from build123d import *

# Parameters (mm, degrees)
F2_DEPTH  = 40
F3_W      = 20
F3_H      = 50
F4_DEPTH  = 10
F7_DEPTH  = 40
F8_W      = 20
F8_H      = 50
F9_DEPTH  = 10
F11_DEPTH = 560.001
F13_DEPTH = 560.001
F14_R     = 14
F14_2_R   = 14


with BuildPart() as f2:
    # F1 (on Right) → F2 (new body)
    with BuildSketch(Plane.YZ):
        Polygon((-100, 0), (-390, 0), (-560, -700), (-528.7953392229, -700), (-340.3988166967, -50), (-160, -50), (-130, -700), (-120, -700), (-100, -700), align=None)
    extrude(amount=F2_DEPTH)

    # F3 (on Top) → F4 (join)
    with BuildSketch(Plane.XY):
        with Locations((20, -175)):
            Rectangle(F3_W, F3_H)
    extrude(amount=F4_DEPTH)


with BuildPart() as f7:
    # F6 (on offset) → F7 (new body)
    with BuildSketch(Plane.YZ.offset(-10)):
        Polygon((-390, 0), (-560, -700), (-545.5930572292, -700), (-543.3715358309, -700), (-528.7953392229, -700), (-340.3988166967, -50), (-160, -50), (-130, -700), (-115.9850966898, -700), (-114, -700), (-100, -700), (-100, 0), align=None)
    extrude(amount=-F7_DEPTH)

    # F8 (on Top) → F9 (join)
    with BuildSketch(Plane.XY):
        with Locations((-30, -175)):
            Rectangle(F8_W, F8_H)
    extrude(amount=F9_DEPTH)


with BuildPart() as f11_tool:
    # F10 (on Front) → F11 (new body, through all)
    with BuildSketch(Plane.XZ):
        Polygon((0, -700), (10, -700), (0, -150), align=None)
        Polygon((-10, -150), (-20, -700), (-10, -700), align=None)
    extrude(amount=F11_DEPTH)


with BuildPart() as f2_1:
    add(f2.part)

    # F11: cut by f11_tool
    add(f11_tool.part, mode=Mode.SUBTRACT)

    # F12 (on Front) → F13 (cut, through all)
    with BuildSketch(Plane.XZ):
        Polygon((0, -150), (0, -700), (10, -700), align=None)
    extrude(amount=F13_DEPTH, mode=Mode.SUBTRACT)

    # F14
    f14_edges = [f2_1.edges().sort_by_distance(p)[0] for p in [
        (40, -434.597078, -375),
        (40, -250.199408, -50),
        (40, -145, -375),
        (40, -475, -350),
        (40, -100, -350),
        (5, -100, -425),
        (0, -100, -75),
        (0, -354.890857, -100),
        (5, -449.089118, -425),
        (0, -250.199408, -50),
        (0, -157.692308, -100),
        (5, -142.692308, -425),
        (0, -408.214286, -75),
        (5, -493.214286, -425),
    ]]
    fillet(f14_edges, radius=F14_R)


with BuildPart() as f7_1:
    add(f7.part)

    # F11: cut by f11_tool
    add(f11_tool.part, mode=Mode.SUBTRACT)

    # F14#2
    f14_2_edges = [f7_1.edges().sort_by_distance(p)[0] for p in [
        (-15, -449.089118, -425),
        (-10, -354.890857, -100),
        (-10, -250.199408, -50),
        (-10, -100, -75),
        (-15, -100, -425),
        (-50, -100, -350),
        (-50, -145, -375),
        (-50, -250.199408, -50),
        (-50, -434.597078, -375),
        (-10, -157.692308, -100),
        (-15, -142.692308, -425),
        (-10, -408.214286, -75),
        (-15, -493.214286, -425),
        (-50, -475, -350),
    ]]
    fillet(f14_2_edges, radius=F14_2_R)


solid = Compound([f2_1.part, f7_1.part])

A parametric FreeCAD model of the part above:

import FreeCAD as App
import Part
import Sketcher

V = App.Vector
Q = App.Units.Quantity


def edges_at(feature, points):
    """Names of the edges that pass closest to the given points."""
    edges = feature.Shape.Edges
    near = lambda p: min(range(len(edges)), key=lambda i: edges[i].distToShape(Part.Vertex(*p))[0])
    return sorted({f"Edge{near(p) + 1}" for p in points})

doc = App.newDocument("Part")
body = doc.addObject("PartDesign::Body", "Body")

# Sketch on YZ plane
sketch1 = body.newObject("Sketcher::SketchObject", "Sketch")
sketch1.AttachmentSupport = (doc.getObject("YZ_Plane"), [""])
sketch1.MapMode = "FlatFace"
sketch1.addGeometry([
    Part.LineSegment(V(-100, 0, 0), V(-390, 0, 0)),  # 0
    Part.LineSegment(V(-390, 0, 0), V(-560, -700, 0)),  # 1
    Part.LineSegment(V(-560, -700, 0), V(-529, -700, 0)),  # 2
    Part.LineSegment(V(-529, -700, 0), V(-340, -50, 0)),  # 3
    Part.LineSegment(V(-340, -50, 0), V(-160, -50, 0)),  # 4
    Part.LineSegment(V(-160, -50, 0), V(-130, -700, 0)),  # 5
    Part.LineSegment(V(-130, -700, 0), V(-100, -700, 0)),  # 6
    Part.LineSegment(V(-100, -700, 0), V(-100, 0, 0)),  # 7
], False)
sketch1.addConstraint([
    Sketcher.Constraint("Coincident", 0, 2, 1, 1),
    Sketcher.Constraint("Coincident", 1, 2, 2, 1),
    Sketcher.Constraint("Coincident", 2, 2, 3, 1),
    Sketcher.Constraint("Coincident", 3, 2, 4, 1),
    Sketcher.Constraint("Coincident", 4, 2, 5, 1),
    Sketcher.Constraint("Coincident", 5, 2, 6, 1),
    Sketcher.Constraint("Coincident", 6, 2, 7, 1),
    Sketcher.Constraint("Coincident", 7, 2, 0, 1),
    Sketcher.Constraint("Horizontal", 0),
    Sketcher.Constraint("Horizontal", 2),
    Sketcher.Constraint("Horizontal", 4),
    Sketcher.Constraint("Horizontal", 6),
    Sketcher.Constraint("Vertical", 7),
    Sketcher.Constraint("PointOnObject", 0, 2, -1),
    Sketcher.Constraint("Horizontal", 2, 2, 5, 2),
    Sketcher.Constraint("DistanceX", 0, 2, 0, 1, Q("290 mm")),
    Sketcher.Constraint("DistanceX", 6, 1, 6, 2, Q("30 mm")),
    Sketcher.Constraint("DistanceY", 7, 1, 7, 2, Q("700 mm")),
    Sketcher.Constraint("DistanceX", 0, 2, -1, 1, Q("390 mm")),
    Sketcher.Constraint("DistanceX", 1, 2, -1, 1, Q("560 mm")),
    Sketcher.Constraint("DistanceY", 3, 2, -1, 1, Q("50 mm")),
    Sketcher.Constraint("DistanceX", 4, 2, -1, 1, Q("160 mm")),
    Sketcher.Constraint("DistanceX", 2, 1, 2, 2, Q("31.204661 mm")),
    Sketcher.Constraint("DistanceX", 4, 1, 4, 2, Q("180.398817 mm")),
])
pad1 = body.newObject("PartDesign::Pad", "Pad")
pad1.Profile = sketch1
pad1.Length = 40

# Sketch on XY plane
sketch2 = body.newObject("Sketcher::SketchObject", "Sketch001")
sketch2.AttachmentSupport = (doc.getObject("XY_Plane"), [""])
sketch2.MapMode = "FlatFace"
sketch2.addGeometry([
    Part.LineSegment(V(10, -150, 0), V(10, -200, 0)),
    Part.LineSegment(V(10, -200, 0), V(30, -200, 0)),
    Part.LineSegment(V(30, -200, 0), V(30, -150, 0)),
    Part.LineSegment(V(30, -150, 0), V(10, -150, 0)),
], False)
sketch2.addConstraint([
    Sketcher.Constraint("Coincident", 0, 2, 1, 1),
    Sketcher.Constraint("Coincident", 1, 2, 2, 1),
    Sketcher.Constraint("Coincident", 2, 2, 3, 1),
    Sketcher.Constraint("Coincident", 3, 2, 0, 1),
    Sketcher.Constraint("Vertical", 0),
    Sketcher.Constraint("Horizontal", 1),
    Sketcher.Constraint("Vertical", 2),
    Sketcher.Constraint("Horizontal", 3),
    Sketcher.Constraint("DistanceX", 1, 1, 1, 2, Q("20 mm")),
    Sketcher.Constraint("DistanceY", 0, 2, 0, 1, Q("50 mm")),
    Sketcher.Constraint("DistanceX", -1, 1, 0, 2, Q("10 mm")),
    Sketcher.Constraint("DistanceY", 0, 2, -1, 1, Q("200 mm")),
])
pad2 = body.newObject("PartDesign::Pad", "Pad001")
pad2.Profile = sketch2
pad2.Length = 10
body2 = doc.addObject("PartDesign::Body", "Body001")

# Sketch on YZ plane
sketch3 = body2.newObject("Sketcher::SketchObject", "Sketch002")
sketch3.AttachmentSupport = (doc.getObject("YZ_Plane001"), [""])
sketch3.MapMode = "FlatFace"
sketch3.AttachmentOffset = App.Placement(V(0, 0, -10), App.Rotation())
sketch3.addGeometry([
    Part.LineSegment(V(-390, 0, 0), V(-560, -700, 0)),  # 0
    Part.LineSegment(V(-560, -700, 0), V(-529, -700, 0)),  # 1
    Part.LineSegment(V(-529, -700, 0), V(-340, -50, 0)),  # 2
    Part.LineSegment(V(-340, -50, 0), V(-160, -50, 0)),  # 3
    Part.LineSegment(V(-160, -50, 0), V(-130, -700, 0)),  # 4
    Part.LineSegment(V(-130, -700, 0), V(-100, -700, 0)),  # 5
    Part.LineSegment(V(-100, -700, 0), V(-100, 0, 0)),  # 6
    Part.LineSegment(V(-100, 0, 0), V(-390, 0, 0)),  # 7
], False)
sketch3.addConstraint([
    Sketcher.Constraint("Coincident", 0, 2, 1, 1),
    Sketcher.Constraint("Coincident", 1, 2, 2, 1),
    Sketcher.Constraint("Coincident", 2, 2, 3, 1),
    Sketcher.Constraint("Coincident", 3, 2, 4, 1),
    Sketcher.Constraint("Coincident", 4, 2, 5, 1),
    Sketcher.Constraint("Coincident", 5, 2, 6, 1),
    Sketcher.Constraint("Coincident", 6, 2, 7, 1),
    Sketcher.Constraint("Coincident", 7, 2, 0, 1),
    Sketcher.Constraint("Horizontal", 1),
    Sketcher.Constraint("Horizontal", 3),
    Sketcher.Constraint("Horizontal", 5),
    Sketcher.Constraint("Vertical", 6),
    Sketcher.Constraint("Horizontal", 7),
    Sketcher.Constraint("PointOnObject", 6, 2, -1),
    Sketcher.Constraint("Horizontal", 1, 2, 4, 2),
    Sketcher.Constraint("DistanceX", 5, 1, 5, 2, Q("30 mm")),
    Sketcher.Constraint("DistanceX", 7, 2, 7, 1, Q("290 mm")),
    Sketcher.Constraint("DistanceY", 6, 1, 6, 2, Q("700 mm")),
    Sketcher.Constraint("DistanceX", 0, 2, -1, 1, Q("560 mm")),
    Sketcher.Constraint("DistanceY", 2, 2, -1, 1, Q("50 mm")),
    Sketcher.Constraint("DistanceX", 3, 2, -1, 1, Q("160 mm")),
    Sketcher.Constraint("DistanceX", 4, 2, -1, 1, Q("130 mm")),
    Sketcher.Constraint("DistanceX", 1, 1, 1, 2, Q("31.204661 mm")),
    Sketcher.Constraint("DistanceX", 3, 1, 3, 2, Q("180.398817 mm")),
])
pad3 = body2.newObject("PartDesign::Pad", "Pad002")
pad3.Profile = sketch3
pad3.Length = 40
pad3.Reversed = True

# Sketch on XY plane
sketch4 = body2.newObject("Sketcher::SketchObject", "Sketch003")
sketch4.AttachmentSupport = (doc.getObject("XY_Plane001"), [""])
sketch4.MapMode = "FlatFace"
sketch4.addGeometry([
    Part.LineSegment(V(-40, -150, 0), V(-40, -200, 0)),
    Part.LineSegment(V(-40, -200, 0), V(-20, -200, 0)),
    Part.LineSegment(V(-20, -200, 0), V(-20, -150, 0)),
    Part.LineSegment(V(-20, -150, 0), V(-40, -150, 0)),
], False)
sketch4.addConstraint([
    Sketcher.Constraint("Coincident", 0, 2, 1, 1),
    Sketcher.Constraint("Coincident", 1, 2, 2, 1),
    Sketcher.Constraint("Coincident", 2, 2, 3, 1),
    Sketcher.Constraint("Coincident", 3, 2, 0, 1),
    Sketcher.Constraint("Vertical", 0),
    Sketcher.Constraint("Horizontal", 1),
    Sketcher.Constraint("Vertical", 2),
    Sketcher.Constraint("Horizontal", 3),
    Sketcher.Constraint("DistanceX", 1, 1, 1, 2, Q("20 mm")),
    Sketcher.Constraint("DistanceY", 0, 2, 0, 1, Q("50 mm")),
    Sketcher.Constraint("DistanceX", 0, 2, -1, 1, Q("40 mm")),
    Sketcher.Constraint("DistanceY", 0, 2, -1, 1, Q("200 mm")),
])
pad4 = body2.newObject("PartDesign::Pad", "Pad003")
pad4.Profile = sketch4
pad4.Length = 10
body3 = doc.addObject("PartDesign::Body", "Body002")
body3.AllowCompound = True

# Sketch on XZ plane
sketch5 = body3.newObject("Sketcher::SketchObject", "Sketch004")
sketch5.AttachmentSupport = (doc.getObject("XZ_Plane002"), [""])
sketch5.MapMode = "FlatFace"
sketch5.addGeometry([
    Part.LineSegment(V(0, -700, 0), V(10, -700, 0)),  # 0
    Part.LineSegment(V(10, -700, 0), V(0, -150, 0)),  # 1
    Part.LineSegment(V(0, -150, 0), V(0, -700, 0)),  # 2
    Part.LineSegment(V(-10, -150, 0), V(-20, -700, 0)),  # 3
    Part.LineSegment(V(-20, -700, 0), V(-10, -700, 0)),  # 4
    Part.LineSegment(V(-10, -700, 0), V(-10, -150, 0)),  # 5
], False)
sketch5.addConstraint([
    Sketcher.Constraint("Coincident", 0, 2, 1, 1),
    Sketcher.Constraint("Coincident", 1, 2, 2, 1),
    Sketcher.Constraint("Coincident", 2, 2, 0, 1),
    Sketcher.Constraint("Coincident", 3, 2, 4, 1),
    Sketcher.Constraint("Coincident", 4, 2, 5, 1),
    Sketcher.Constraint("Coincident", 5, 2, 3, 1),
    Sketcher.Constraint("Horizontal", 0),
    Sketcher.Constraint("Vertical", 2),
    Sketcher.Constraint("Horizontal", 4),
    Sketcher.Constraint("Vertical", 5),
    Sketcher.Constraint("Symmetric", 0, 2, 4, 2, -2),
    Sketcher.Constraint("PointOnObject", 1, 2, -2),
    Sketcher.Constraint("Horizontal", 1, 2, 5, 2),
    Sketcher.Constraint("Equal", 0, 4),
    Sketcher.Constraint("DistanceX", 0, 1, 0, 2, Q("10 mm")),
    Sketcher.Constraint("DistanceY", 2, 2, 2, 1, Q("550 mm")),
    Sketcher.Constraint("DistanceY", 0, 2, -1, 1, Q("700 mm")),
])
pad5 = body3.newObject("PartDesign::Pad", "Pad004")
pad5.Profile = sketch5
pad5.Length = 560.001
doc.recompute()

body4 = doc.addObject("PartDesign::Body", "Body003")
body4.BaseFeature = body3
boolean = body.newObject("PartDesign::Boolean", "Boolean")
boolean.Type = "Cut"
boolean.addObjects([body4])
doc.recompute()

# Sketch on XZ plane
sketch6 = body.newObject("Sketcher::SketchObject", "Sketch005")
sketch6.AttachmentSupport = (doc.getObject("XZ_Plane"), [""])
sketch6.MapMode = "FlatFace"
sketch6.addGeometry([
    Part.LineSegment(V(0, -150, 0), V(0, -700, 0)),
    Part.LineSegment(V(0, -700, 0), V(10, -700, 0)),
    Part.LineSegment(V(10, -700, 0), V(0, -150, 0)),
], False)
sketch6.addConstraint([
    Sketcher.Constraint("Coincident", 0, 2, 1, 1),
    Sketcher.Constraint("Coincident", 1, 2, 2, 1),
    Sketcher.Constraint("Coincident", 2, 2, 0, 1),
    Sketcher.Constraint("Vertical", 0),
    Sketcher.Constraint("Horizontal", 1),
    Sketcher.Constraint("PointOnObject", 0, 2, -2),
    Sketcher.Constraint("DistanceX", 1, 1, 1, 2, Q("10 mm")),
    Sketcher.Constraint("DistanceY", 0, 2, 0, 1, Q("550 mm")),
    Sketcher.Constraint("DistanceY", 0, 2, -1, 1, Q("700 mm")),
])
pocket1 = body.newObject("PartDesign::Pocket", "Pocket")
pocket1.Profile = sketch6
pocket1.Type = "ThroughAll"
pocket1.Reversed = True
doc.recompute()

fillet = body.newObject("PartDesign::Fillet", "Fillet")
fillet.Base = (pocket1, edges_at(pocket1, [
    (40, -434.597, -375),
    (40, -250.199, -50),
    (40, -145, -375),
    (40, -475, -350),
    (40, -100, -350),
    (5, -100, -425),
    (0, -100, -75),
    (0, -354.891, -100),
    (5, -449.089, -425),
    (0, -250.199, -50),
    (0, -157.692, -100),
    (5, -142.692, -425),
    (0, -408.214, -75),
    (5, -493.214, -425),
]))
fillet.Radius = 14
doc.recompute()

boolean2 = body2.newObject("PartDesign::Boolean", "Boolean001")
boolean2.Type = "Cut"
boolean2.addObjects([body3])
doc.recompute()

fillet2 = body2.newObject("PartDesign::Fillet", "Fillet001")
fillet2.Base = (boolean2, edges_at(boolean2, [
    (-15, -449.089, -425),
    (-10, -354.891, -100),
    (-10, -250.199, -50),
    (-10, -100, -75),
    (-15, -100, -425),
    (-50, -100, -350),
    (-50, -145, -375),
    (-50, -250.199, -50),
    (-50, -434.597, -375),
    (-10, -157.692, -100),
    (-15, -142.692, -425),
    (-10, -408.214, -75),
    (-15, -493.214, -425),
    (-50, -475, -350),
]))
fillet2.Radius = 14

doc.recompute()
